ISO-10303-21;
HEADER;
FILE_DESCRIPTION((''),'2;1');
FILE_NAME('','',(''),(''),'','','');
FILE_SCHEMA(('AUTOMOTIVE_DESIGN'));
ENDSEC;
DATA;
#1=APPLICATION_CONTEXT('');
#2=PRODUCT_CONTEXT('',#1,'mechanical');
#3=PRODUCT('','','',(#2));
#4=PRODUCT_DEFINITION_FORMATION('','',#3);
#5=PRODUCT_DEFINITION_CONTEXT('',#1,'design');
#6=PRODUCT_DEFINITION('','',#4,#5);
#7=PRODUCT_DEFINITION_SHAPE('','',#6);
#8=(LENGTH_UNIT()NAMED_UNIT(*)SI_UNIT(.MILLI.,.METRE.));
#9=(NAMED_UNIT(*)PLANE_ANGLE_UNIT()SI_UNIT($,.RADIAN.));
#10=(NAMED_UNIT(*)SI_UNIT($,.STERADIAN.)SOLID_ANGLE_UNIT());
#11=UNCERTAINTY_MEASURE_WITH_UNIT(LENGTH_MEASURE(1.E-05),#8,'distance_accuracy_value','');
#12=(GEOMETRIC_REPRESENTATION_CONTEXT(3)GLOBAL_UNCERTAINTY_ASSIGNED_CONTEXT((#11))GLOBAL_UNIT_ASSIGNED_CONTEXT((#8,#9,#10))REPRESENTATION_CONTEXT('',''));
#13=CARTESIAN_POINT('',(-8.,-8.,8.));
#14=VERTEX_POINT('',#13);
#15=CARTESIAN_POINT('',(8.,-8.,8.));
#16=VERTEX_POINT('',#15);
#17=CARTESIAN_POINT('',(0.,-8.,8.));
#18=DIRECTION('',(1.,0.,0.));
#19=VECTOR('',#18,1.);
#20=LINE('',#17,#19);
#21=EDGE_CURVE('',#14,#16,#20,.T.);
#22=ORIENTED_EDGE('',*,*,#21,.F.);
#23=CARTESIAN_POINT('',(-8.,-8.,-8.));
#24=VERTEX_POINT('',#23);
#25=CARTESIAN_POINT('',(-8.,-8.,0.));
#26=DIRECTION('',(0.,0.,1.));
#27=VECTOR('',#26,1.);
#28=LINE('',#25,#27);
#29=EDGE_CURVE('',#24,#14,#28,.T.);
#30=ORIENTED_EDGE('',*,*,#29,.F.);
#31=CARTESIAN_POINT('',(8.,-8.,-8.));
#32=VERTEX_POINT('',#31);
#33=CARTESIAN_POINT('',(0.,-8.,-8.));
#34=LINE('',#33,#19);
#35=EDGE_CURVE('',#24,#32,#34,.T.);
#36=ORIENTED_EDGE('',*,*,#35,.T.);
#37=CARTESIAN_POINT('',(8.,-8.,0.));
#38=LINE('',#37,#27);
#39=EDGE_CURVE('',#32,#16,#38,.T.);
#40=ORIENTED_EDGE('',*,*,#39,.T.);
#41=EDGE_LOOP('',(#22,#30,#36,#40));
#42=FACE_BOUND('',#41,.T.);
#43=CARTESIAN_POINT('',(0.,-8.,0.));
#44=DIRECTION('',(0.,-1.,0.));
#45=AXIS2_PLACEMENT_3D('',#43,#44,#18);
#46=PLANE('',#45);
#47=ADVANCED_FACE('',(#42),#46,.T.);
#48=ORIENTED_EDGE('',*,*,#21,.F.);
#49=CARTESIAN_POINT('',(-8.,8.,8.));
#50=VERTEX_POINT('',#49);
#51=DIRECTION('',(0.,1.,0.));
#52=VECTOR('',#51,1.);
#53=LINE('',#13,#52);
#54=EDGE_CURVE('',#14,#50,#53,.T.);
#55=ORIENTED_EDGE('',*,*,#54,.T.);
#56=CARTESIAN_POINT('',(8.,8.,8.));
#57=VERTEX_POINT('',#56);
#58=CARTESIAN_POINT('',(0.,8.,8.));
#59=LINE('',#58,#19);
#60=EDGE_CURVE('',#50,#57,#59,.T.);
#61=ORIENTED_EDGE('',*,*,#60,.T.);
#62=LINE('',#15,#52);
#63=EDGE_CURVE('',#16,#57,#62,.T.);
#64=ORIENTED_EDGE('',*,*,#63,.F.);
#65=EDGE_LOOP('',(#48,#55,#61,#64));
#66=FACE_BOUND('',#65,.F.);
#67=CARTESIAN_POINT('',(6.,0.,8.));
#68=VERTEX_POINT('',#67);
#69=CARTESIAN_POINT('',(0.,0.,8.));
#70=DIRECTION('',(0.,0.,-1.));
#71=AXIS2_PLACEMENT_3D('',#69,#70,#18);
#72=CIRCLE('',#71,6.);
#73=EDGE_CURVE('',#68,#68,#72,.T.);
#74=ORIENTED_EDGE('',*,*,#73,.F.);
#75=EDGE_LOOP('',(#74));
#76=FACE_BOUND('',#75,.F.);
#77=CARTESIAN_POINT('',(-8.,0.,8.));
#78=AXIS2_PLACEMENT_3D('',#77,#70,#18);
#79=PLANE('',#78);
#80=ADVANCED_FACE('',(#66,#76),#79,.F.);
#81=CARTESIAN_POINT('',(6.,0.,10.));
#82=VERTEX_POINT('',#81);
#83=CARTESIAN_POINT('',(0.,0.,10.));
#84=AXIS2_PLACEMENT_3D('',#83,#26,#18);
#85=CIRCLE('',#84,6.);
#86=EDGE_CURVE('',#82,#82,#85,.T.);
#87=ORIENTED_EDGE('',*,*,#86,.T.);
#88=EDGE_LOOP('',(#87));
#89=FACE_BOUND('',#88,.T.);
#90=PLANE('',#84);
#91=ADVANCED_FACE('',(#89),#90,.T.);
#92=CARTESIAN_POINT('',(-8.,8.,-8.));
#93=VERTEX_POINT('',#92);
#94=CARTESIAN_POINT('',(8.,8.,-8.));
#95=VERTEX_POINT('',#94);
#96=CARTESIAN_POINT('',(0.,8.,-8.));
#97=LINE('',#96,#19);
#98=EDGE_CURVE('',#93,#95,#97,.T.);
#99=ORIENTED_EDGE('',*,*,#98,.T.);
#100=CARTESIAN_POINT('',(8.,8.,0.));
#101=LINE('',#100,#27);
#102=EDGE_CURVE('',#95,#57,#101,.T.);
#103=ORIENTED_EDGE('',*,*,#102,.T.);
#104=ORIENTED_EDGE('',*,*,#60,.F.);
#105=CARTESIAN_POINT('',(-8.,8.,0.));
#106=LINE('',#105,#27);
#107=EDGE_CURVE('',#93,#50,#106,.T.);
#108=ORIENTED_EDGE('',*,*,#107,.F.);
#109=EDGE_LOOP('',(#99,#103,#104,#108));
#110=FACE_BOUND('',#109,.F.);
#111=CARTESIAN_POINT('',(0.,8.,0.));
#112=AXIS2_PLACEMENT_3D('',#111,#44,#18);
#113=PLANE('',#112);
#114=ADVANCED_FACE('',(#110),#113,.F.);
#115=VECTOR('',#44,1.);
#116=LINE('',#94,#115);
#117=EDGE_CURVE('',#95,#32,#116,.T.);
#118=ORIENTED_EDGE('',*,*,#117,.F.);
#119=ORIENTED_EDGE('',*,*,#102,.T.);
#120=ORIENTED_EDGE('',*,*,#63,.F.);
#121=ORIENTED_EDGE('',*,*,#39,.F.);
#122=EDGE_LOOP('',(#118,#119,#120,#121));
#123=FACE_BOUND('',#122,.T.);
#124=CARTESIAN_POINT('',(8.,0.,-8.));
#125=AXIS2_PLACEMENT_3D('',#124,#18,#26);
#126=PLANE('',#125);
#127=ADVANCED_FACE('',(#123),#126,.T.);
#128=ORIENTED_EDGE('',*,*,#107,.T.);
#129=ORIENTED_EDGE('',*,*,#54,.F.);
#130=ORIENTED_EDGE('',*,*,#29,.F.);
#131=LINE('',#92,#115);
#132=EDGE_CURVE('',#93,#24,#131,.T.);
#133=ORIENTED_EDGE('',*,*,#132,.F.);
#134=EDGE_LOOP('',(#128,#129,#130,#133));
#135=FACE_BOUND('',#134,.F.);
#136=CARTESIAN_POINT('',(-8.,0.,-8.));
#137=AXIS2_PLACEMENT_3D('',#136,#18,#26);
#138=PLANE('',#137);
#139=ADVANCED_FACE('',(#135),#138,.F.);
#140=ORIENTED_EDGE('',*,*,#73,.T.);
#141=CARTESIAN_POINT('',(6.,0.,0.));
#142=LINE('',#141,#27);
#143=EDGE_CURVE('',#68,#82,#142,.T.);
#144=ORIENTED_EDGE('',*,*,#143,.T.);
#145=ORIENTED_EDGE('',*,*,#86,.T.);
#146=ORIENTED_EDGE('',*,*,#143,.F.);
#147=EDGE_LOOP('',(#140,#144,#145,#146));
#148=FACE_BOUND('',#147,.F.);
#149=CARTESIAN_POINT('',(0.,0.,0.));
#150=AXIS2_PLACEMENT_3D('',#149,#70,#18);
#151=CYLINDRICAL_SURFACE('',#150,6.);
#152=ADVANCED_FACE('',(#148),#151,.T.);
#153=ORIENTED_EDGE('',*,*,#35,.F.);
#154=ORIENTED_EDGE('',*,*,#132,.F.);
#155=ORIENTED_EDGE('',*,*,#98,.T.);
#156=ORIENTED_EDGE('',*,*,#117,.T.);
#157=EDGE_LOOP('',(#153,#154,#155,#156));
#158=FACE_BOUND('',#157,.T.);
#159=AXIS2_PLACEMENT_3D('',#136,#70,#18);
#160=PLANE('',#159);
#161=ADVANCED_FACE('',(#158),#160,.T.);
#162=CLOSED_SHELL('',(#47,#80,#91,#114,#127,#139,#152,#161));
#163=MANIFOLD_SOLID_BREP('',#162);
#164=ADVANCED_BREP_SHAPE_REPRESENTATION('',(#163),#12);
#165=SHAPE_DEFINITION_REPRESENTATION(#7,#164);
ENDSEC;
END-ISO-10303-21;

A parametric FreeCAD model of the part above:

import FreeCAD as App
import Part
import Sketcher


def add_polygon(sketch, points):
    """Adds a closed chain of lines whose ends are joined by coincident constraints."""
    first, n = sketch.GeometryCount, len(points)
    for a, b in zip(points, points[1:] + points[:1]):
        sketch.addGeometry(Part.LineSegment(App.Vector(*a, 0), App.Vector(*b, 0)), False)
    for i in range(n):
        sketch.addConstraint(Sketcher.Constraint("Coincident", first + i, 2, first + (i + 1) % n, 1))

doc = App.newDocument("Part")
body = doc.addObject("PartDesign::Body", "Body")

# Sketch on XZ plane
sketch1 = body.newObject("Sketcher::SketchObject", "Sketch")
sketch1.AttachmentSupport = (doc.getObject("XZ_Plane"), [""])
sketch1.MapMode = "FlatFace"
add_polygon(sketch1, [(-8, 8), (-8, -8), (8, -8), (8, 8)])  # lines 0-3
sketch1.addConstraint([
    Sketcher.Constraint("Vertical", 0),
    Sketcher.Constraint("Horizontal", 1),
    Sketcher.Constraint("Vertical", 2),
    Sketcher.Constraint("Horizontal", 3),
    Sketcher.Constraint("Symmetric", 0, 2, 2, 2, -1, 1),
    Sketcher.Constraint("Equal", 3, 0),
    Sketcher.Constraint("DistanceX", 1, 1, 1, 2, 16.0),
])
pad1 = body.newObject("PartDesign::Pad", "Pad")
pad1.Profile = sketch1
pad1.Length = 16
pad1.Midplane = True

# Sketch on XY plane
sketch2 = body.newObject("Sketcher::SketchObject", "Sketch001")
sketch2.AttachmentSupport = (doc.getObject("XY_Plane"), [""])
sketch2.MapMode = "FlatFace"
sketch2.addGeometry(Part.Circle(App.Vector(0, 0, 0), App.Vector(0, 0, 1), 6), False)
sketch2.addConstraint([
    Sketcher.Constraint("Coincident", 0, 3, -1, 1),
    Sketcher.Constraint("Diameter", 0, 12.0),
])
pad2 = body.newObject("PartDesign::Pad", "Pad001")
pad2.Profile = sketch2
pad2.Length = 10

doc.recompute()
